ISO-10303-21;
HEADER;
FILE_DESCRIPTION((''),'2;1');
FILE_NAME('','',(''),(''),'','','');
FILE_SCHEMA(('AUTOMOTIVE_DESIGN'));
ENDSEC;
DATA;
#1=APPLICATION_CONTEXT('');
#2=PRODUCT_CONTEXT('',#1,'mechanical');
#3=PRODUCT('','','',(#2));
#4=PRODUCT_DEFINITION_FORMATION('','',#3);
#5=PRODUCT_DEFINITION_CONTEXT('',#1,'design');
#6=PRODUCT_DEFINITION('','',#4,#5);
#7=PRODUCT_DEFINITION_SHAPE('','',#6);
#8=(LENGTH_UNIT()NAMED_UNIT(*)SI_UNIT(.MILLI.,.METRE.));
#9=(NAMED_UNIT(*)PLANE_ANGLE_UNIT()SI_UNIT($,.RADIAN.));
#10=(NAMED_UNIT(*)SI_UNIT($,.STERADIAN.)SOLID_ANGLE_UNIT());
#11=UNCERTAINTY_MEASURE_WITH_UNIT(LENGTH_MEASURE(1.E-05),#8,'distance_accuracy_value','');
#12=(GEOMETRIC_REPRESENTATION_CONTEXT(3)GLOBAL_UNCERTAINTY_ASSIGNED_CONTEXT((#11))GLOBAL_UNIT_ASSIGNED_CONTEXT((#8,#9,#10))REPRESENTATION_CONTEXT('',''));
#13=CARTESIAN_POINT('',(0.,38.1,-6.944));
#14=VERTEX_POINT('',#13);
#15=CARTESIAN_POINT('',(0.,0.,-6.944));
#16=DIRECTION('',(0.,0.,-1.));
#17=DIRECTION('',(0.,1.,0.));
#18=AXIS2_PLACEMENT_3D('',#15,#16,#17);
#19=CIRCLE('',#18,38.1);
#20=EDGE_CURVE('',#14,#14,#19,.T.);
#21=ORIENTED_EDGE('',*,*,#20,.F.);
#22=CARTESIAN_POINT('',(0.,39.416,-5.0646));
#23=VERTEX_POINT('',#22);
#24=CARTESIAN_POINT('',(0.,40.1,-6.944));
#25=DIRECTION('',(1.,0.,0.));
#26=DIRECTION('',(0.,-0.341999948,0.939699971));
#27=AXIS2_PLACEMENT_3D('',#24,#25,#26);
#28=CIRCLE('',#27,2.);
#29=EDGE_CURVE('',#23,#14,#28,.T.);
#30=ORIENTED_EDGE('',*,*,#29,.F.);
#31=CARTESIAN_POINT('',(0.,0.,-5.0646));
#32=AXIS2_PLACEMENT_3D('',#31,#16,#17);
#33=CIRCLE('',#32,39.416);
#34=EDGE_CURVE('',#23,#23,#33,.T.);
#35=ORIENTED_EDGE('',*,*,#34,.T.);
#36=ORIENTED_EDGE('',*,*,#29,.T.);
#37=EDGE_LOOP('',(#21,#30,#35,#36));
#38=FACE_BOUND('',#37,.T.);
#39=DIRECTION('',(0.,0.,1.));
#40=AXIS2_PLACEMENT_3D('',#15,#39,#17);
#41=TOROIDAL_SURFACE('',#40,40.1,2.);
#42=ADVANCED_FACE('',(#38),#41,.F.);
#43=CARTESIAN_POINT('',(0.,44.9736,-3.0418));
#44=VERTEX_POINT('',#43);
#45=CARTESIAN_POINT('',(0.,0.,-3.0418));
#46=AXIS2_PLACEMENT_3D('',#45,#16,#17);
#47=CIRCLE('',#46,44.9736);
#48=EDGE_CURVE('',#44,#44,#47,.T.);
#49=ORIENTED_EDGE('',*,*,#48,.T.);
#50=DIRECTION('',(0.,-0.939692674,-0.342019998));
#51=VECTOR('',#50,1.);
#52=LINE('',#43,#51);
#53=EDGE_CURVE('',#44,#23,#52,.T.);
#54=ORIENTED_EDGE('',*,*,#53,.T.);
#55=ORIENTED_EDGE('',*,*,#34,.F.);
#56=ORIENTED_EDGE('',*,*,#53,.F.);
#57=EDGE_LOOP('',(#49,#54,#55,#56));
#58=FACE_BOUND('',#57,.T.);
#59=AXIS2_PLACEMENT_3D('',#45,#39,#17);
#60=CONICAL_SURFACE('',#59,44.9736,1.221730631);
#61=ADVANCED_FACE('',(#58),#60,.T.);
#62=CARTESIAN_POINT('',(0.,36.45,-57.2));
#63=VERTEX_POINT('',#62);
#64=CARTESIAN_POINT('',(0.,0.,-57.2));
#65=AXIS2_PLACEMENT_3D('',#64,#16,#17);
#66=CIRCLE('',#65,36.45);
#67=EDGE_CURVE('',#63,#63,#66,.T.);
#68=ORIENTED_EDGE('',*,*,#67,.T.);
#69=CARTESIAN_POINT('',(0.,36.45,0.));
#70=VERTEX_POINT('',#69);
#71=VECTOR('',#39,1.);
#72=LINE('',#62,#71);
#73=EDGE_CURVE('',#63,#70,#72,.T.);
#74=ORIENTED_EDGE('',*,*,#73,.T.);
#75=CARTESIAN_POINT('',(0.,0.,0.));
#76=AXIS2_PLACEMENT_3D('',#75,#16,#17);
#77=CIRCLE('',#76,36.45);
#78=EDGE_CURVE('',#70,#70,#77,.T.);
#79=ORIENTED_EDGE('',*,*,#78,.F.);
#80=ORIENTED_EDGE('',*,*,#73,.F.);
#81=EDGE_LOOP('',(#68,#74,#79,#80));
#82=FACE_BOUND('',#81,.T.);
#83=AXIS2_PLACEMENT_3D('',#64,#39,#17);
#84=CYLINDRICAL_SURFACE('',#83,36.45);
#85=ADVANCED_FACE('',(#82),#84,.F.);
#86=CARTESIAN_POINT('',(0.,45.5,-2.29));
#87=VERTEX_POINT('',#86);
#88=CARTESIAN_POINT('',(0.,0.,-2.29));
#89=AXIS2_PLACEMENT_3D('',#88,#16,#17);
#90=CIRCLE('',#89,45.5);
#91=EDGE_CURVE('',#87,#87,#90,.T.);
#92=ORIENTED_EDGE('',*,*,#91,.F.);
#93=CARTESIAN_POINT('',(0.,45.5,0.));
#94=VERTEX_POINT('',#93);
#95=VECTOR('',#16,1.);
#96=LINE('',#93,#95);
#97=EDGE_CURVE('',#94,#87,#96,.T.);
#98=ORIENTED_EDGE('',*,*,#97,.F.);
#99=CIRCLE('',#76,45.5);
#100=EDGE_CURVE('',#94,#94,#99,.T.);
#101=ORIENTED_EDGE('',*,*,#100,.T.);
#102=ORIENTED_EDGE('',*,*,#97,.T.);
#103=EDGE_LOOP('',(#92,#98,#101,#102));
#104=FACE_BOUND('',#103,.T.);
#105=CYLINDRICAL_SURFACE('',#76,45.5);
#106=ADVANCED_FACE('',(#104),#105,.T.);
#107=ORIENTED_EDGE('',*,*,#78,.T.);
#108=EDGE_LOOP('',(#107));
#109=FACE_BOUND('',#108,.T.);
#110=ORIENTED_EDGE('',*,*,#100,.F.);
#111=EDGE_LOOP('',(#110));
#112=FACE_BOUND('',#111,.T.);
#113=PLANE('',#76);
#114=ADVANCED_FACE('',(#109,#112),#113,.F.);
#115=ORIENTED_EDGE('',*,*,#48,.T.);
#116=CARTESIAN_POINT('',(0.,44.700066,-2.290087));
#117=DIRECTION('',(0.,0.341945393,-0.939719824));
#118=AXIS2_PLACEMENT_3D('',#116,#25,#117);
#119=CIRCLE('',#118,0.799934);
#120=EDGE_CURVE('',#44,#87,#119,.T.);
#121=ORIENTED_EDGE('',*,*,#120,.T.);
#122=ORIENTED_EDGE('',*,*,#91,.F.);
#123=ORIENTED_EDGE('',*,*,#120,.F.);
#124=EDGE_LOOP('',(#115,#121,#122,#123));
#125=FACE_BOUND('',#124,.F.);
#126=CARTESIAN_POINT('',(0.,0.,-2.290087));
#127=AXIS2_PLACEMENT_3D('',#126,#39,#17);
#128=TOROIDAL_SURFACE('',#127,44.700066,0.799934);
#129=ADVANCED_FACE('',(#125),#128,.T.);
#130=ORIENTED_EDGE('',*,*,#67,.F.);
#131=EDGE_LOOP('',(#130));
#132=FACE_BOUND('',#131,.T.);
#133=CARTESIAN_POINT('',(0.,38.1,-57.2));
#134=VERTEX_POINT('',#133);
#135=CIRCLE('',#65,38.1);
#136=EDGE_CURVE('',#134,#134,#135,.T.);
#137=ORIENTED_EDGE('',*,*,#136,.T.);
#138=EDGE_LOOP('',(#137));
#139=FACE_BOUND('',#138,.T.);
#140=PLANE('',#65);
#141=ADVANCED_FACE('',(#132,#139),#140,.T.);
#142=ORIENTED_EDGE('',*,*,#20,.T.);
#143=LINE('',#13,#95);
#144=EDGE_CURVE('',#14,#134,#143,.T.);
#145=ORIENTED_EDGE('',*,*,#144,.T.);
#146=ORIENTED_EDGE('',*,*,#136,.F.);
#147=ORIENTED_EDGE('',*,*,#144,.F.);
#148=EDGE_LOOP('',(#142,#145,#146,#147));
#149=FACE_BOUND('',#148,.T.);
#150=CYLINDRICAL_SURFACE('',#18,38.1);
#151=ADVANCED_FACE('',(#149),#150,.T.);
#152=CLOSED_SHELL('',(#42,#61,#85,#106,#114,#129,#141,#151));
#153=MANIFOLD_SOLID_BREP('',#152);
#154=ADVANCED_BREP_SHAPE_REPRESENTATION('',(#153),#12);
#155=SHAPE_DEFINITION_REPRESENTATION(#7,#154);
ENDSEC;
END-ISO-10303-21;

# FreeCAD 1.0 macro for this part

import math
import FreeCAD as App
import Part
import Sketcher
from FreeCAD import Vector
Q = App.Units.Quantity

doc = App.newDocument("Part")
body = doc.addObject("PartDesign::Body", "Body")

# Sketch on YZ plane
sketch1 = body.newObject("Sketcher::SketchObject", "Sketch")
sketch1.AttachmentSupport = (doc.getObject("YZ_Plane"), [""])
sketch1.MapMode = "FlatFace"
sketch1.addGeometry([
    Part.LineSegment(Vector(36.5, 0, 0), Vector(36.5, -57.2, 0)),  # 0
    Part.LineSegment(Vector(36.5, -57.2, 0), Vector(38.1, -57.2, 0)),  # 1
    Part.LineSegment(Vector(38.1, -57.2, 0), Vector(38.1, -6.9, 0)),  # 2
    Part.ArcOfCircle(Part.Circle(Vector(40.1, -6.9, 0), Vector(0, 0, 1), 2), math.radians(110), math.radians(180)),  # 3
    Part.LineSegment(Vector(39.4, -5.1, 0), Vector(45, -3, 0)),  # 4
    Part.ArcOfCircle(Part.Circle(Vector(44.7, -2.3, 0), Vector(0, 0, 1), 0.8), math.radians(-70), math.radians(0)),  # 5
    Part.LineSegment(Vector(45.5, -2.3, 0), Vector(45.5, 0, 0)),  # 6
    Part.LineSegment(Vector(45.5, 0, 0), Vector(36.5, 0, 0)),  # 7
], False)
sketch1.addConstraint([
    Sketcher.Constraint("Coincident", 0, 2, 1, 1),
    Sketcher.Constraint("Coincident", 1, 2, 2, 1),
    Sketcher.Constraint("Tangent", 2, 2, 3, 2),
    Sketcher.Constraint("Tangent", 3, 1, 4, 1),
    Sketcher.Constraint("Tangent", 4, 2, 5, 1),
    Sketcher.Constraint("Tangent", 5, 2, 6, 1),
    Sketcher.Constraint("Coincident", 6, 2, 7, 1),
    Sketcher.Constraint("Coincident", 7, 2, 0, 1),
    Sketcher.Constraint("Vertical", 0),
    Sketcher.Constraint("Horizontal", 1),
    Sketcher.Constraint("Vertical", 2),
    Sketcher.Constraint("Vertical", 6),
    Sketcher.Constraint("Horizontal", 7),
    Sketcher.Constraint("PointOnObject", 6, 2, -1),
    Sketcher.Constraint("Radius", 3, Q("2 mm")),
    Sketcher.Constraint("Radius", 5, Q("0.8 mm")),
    Sketcher.Constraint("Angle", 4, Q("20 deg")),
    Sketcher.Constraint("DistanceY", 0, 2, 0, 1, Q("57.2 mm")),
    Sketcher.Constraint("DistanceX", 1, 1, 1, 2, Q("1.65 mm")),
    Sketcher.Constraint("DistanceY", 6, 1, 6, 2, Q("2.29 mm")),
    Sketcher.Constraint("DistanceX", 7, 2, 7, 1, Q("9.05 mm")),
    Sketcher.Constraint("DistanceX", -1, 1, 3, 3, Q("40.1 mm")),
])
revolution = body.newObject("PartDesign::Revolution", "Revolution")
revolution.Profile = sketch1
revolution.ReferenceAxis = (sketch1, ["V_Axis"])
revolution.Angle = 360

doc.recompute()
